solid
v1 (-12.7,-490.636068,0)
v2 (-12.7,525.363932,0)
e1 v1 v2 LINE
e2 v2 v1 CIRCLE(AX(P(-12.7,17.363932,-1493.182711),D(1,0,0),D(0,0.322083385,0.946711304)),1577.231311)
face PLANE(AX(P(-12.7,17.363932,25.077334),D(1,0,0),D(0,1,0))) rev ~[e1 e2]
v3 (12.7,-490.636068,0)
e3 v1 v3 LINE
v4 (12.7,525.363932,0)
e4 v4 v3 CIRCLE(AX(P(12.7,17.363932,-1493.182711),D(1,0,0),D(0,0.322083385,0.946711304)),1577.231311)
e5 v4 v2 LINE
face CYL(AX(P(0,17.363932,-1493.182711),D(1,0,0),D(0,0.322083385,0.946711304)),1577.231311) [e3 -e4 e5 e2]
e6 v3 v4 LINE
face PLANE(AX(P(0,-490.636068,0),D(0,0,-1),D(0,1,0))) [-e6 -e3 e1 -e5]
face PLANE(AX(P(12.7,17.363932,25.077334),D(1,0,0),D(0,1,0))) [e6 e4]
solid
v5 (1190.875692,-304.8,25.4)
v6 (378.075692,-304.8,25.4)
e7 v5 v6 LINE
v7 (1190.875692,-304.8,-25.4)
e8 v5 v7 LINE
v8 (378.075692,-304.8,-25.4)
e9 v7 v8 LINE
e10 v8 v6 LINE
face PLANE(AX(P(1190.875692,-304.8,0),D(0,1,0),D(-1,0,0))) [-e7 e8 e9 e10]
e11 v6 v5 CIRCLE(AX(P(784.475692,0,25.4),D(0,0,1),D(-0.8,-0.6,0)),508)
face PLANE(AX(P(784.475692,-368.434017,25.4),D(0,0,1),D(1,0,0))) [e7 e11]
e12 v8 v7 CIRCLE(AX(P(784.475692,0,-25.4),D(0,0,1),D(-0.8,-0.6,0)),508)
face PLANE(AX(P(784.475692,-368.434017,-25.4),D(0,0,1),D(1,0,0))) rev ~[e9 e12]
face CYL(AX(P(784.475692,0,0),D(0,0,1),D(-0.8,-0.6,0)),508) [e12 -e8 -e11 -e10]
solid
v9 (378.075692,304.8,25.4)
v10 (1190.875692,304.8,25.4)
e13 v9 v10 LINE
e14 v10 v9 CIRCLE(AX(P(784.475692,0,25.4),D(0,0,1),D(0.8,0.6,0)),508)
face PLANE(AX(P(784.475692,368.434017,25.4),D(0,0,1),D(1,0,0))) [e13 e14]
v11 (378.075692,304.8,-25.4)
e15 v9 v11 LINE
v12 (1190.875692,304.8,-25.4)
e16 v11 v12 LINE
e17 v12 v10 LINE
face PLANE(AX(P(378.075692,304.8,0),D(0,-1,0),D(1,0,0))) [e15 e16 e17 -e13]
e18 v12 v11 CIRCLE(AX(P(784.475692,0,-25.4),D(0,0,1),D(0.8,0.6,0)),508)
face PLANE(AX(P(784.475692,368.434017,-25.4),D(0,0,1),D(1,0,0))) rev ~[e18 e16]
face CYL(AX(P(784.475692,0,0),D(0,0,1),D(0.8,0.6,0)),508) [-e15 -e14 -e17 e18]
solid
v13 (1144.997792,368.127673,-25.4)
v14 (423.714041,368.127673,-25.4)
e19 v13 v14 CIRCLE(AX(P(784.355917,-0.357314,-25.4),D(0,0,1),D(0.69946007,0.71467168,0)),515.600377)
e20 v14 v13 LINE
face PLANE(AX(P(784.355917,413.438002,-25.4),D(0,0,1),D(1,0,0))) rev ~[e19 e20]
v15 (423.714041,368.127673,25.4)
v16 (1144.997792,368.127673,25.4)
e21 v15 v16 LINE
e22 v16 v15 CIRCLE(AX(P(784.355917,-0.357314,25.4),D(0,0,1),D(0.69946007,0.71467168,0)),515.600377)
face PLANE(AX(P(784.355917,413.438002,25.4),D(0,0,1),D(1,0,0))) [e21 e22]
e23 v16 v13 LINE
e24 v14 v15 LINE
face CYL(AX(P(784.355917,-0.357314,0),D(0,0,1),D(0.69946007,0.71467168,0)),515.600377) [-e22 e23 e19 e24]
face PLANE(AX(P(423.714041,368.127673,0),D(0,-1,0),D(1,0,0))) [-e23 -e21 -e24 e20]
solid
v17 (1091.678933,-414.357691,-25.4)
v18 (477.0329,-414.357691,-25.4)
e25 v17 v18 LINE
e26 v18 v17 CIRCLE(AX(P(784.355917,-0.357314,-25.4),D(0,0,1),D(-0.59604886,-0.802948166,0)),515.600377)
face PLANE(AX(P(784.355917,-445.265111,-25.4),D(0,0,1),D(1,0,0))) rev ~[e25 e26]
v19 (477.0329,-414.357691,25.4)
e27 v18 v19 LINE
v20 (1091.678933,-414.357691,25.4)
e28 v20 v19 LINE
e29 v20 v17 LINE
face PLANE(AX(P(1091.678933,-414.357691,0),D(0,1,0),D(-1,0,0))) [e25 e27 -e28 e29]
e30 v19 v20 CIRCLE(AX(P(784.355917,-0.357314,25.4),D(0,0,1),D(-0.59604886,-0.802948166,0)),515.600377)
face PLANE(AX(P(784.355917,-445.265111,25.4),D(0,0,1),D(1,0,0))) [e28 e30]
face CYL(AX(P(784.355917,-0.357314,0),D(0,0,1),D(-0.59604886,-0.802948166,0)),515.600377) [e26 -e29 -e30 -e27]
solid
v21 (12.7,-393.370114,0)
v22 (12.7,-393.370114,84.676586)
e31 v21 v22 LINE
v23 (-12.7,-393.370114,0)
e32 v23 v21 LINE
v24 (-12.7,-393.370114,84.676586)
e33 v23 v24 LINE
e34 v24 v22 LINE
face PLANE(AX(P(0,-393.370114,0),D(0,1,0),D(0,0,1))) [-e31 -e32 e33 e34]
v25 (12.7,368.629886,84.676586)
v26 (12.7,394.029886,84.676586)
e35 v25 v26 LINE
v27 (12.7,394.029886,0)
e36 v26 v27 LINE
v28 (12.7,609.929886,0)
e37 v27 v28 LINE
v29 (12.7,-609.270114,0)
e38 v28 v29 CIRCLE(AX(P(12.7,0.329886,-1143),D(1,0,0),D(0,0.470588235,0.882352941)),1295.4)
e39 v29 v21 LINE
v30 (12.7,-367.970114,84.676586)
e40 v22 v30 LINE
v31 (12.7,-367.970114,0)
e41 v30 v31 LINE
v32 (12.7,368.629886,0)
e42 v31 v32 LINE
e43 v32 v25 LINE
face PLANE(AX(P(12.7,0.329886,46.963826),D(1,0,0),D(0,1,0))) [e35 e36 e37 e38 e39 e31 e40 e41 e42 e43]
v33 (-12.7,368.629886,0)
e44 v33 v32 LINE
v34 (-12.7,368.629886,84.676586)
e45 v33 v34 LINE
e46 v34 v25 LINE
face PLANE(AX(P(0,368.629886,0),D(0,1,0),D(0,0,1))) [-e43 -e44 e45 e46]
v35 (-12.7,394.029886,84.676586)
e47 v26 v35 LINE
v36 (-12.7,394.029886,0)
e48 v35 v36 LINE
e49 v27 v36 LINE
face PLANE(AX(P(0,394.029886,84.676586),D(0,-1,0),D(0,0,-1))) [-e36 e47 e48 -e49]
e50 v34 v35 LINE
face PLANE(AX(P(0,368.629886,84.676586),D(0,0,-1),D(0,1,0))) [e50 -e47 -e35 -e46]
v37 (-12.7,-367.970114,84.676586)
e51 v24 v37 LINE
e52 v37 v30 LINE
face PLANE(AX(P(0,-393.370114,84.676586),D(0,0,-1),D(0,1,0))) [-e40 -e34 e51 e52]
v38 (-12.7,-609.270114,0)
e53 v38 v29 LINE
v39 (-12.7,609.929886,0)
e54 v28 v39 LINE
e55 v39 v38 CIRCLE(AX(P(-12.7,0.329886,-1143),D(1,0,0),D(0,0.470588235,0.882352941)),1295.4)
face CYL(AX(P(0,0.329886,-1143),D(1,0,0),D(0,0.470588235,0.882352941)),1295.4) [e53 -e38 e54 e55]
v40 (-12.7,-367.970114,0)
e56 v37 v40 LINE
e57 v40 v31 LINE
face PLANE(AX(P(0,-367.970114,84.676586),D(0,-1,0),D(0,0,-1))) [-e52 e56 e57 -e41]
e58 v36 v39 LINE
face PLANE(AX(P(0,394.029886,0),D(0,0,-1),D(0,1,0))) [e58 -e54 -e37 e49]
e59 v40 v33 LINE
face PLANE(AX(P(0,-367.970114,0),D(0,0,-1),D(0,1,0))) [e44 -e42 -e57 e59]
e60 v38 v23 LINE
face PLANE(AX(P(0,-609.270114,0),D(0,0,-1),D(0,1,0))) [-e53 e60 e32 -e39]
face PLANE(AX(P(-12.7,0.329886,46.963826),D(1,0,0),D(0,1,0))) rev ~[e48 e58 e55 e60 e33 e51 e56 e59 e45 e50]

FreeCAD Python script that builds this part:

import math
import FreeCAD as App
import Part
import Sketcher

V = App.Vector
Q = App.Units.Quantity

doc = App.newDocument("Part")
body = doc.addObject("PartDesign::Body", "Body")

sketch1 = body.newObject("Sketcher::SketchObject", "Sketch")
sketch1.AttachmentSupport = (doc.getObject("YZ_Plane"), [""])
sketch1.MapMode = "FlatFace"
sketch1.addGeometry(Part.ArcOfCircle(Part.Circle(V(0, -1143, 0), V(0, 0, 1), 1295), math.radians(62), math.radians(118)), False)
sketch1.addGeometry(Part.LineSegment(V(-609, 0, 0), V(-393, 0, 0)), False)
sketch1.addGeometry(Part.LineSegment(V(-393, 0, 0), V(-393, 85, 0)), False)
sketch1.addGeometry(Part.LineSegment(V(-393, 85, 0), V(-368, 85, 0)), False)
sketch1.addGeometry(Part.LineSegment(V(-368, 85, 0), V(-368, 0, 0)), False)
sketch1.addGeometry(Part.LineSegment(V(-368, 0, 0), V(369, 0, 0)), False)
sketch1.addGeometry(Part.LineSegment(V(369, 0, 0), V(369, 85, 0)), False)
sketch1.addGeometry(Part.LineSegment(V(369, 85, 0), V(394, 85, 0)), False)
sketch1.addGeometry(Part.LineSegment(V(394, 85, 0), V(394, 0, 0)), False)
sketch1.addGeometry(Part.LineSegment(V(394, 0, 0), V(610, 0, 0)), False)
sketch1.addConstraint(Sketcher.Constraint("Coincident", 0, 2, 1, 1))
sketch1.addConstraint(Sketcher.Constraint("Coincident", 1, 2, 2, 1))
sketch1.addConstraint(Sketcher.Constraint("Coincident", 2, 2, 3, 1))
sketch1.addConstraint(Sketcher.Constraint("Coincident", 3, 2, 4, 1))
sketch1.addConstraint(Sketcher.Constraint("Coincident", 4, 2, 5, 1))
sketch1.addConstraint(Sketcher.Constraint("Coincident", 5, 2, 6, 1))
sketch1.addConstraint(Sketcher.Constraint("Coincident", 6, 2, 7, 1))
sketch1.addConstraint(Sketcher.Constraint("Coincident", 7, 2, 8, 1))
sketch1.addConstraint(Sketcher.Constraint("Coincident", 8, 2, 9, 1))
sketch1.addConstraint(Sketcher.Constraint("Coincident", 9, 2, 0, 1))
sketch1.addConstraint(Sketcher.Constraint("Horizontal", 1))
sketch1.addConstraint(Sketcher.Constraint("Vertical", 2))
sketch1.addConstraint(Sketcher.Constraint("Horizontal", 3))
sketch1.addConstraint(Sketcher.Constraint("Vertical", 4))
sketch1.addConstraint(Sketcher.Constraint("Horizontal", 5))
sketch1.addConstraint(Sketcher.Constraint("Vertical", 6))
sketch1.addConstraint(Sketcher.Constraint("Horizontal", 7))
sketch1.addConstraint(Sketcher.Constraint("Vertical", 8))
sketch1.addConstraint(Sketcher.Constraint("Horizontal", 9))
sketch1.addConstraint(Sketcher.Constraint("PointOnObject", 1, 2, -1))
sketch1.addConstraint(Sketcher.Constraint("PointOnObject", 4, 2, -1))
sketch1.addConstraint(Sketcher.Constraint("PointOnObject", 8, 2, -1))
sketch1.addConstraint(Sketcher.Constraint("Horizontal", 3, 2, 6, 2))
sketch1.addConstraint(Sketcher.Constraint("Equal", 3, 7))
sketch1.addConstraint(Sketcher.Constraint("Equal", 1, 9))
sketch1.addConstraint(Sketcher.Constraint("Radius", 0, Q("51 in")))
sketch1.addConstraint(Sketcher.Constraint("DistanceX", 3, 1, 3, 2, Q("1 in")))
sketch1.addConstraint(Sketcher.Constraint("DistanceX", 5, 1, 5, 2, Q("29 in")))
sketch1.addConstraint(Sketcher.Constraint("DistanceX", 1, 1, 1, 2, Q("8.5 in")))
sketch1.addConstraint(Sketcher.Constraint("DistanceY", 2, 1, 2, 2, Q("84.676586 mm")))
sketch1.addConstraint(Sketcher.Constraint("DistanceX", -1, 1, 0, 3, Q("0.329886 mm")))
pad1 = body.newObject("PartDesign::Pad", "Pad")
pad1.Profile = sketch1
pad1.Length = Q("1 in")
pad1.Midplane = True
body2 = doc.addObject("PartDesign::Body", "Body001")

sketch2 = body2.newObject("Sketcher::SketchObject", "Sketch001")
sketch2.AttachmentSupport = (doc.getObject("YZ_Plane001"), [""])
sketch2.MapMode = "FlatFace"
sketch2.addGeometry(Part.ArcOfCircle(Part.Circle(V(17, -1493, 0), V(0, 0, 1), 1577), math.radians(71), math.radians(109)), False)
sketch2.addGeometry(Part.LineSegment(V(-491, 0, 0), V(525, 0, 0)), False)
sketch2.addConstraint(Sketcher.Constraint("Coincident", 0, 1, 1, 2))
sketch2.addConstraint(Sketcher.Constraint("Coincident", 1, 1, 0, 2))
sketch2.addConstraint(Sketcher.Constraint("Horizontal", 1))
sketch2.addConstraint(Sketcher.Constraint("PointOnObject", 1, 1, -1))
sketch2.addConstraint(Sketcher.Constraint("DistanceX", 1, 1, 1, 2, Q("40 in")))
sketch2.addConstraint(Sketcher.Constraint("Radius", 0, Q("1577.231311 mm")))
sketch2.addConstraint(Sketcher.Constraint("DistanceX", -1, 1, 0, 3, Q("17.363932 mm")))
pad2 = body2.newObject("PartDesign::Pad", "Pad001")
pad2.Profile = sketch2
pad2.Length = Q("1 in")
pad2.Midplane = True
body3 = doc.addObject("PartDesign::Body", "Body002")

sketch3 = body3.newObject("Sketcher::SketchObject", "Sketch002")
sketch3.AttachmentSupport = (doc.getObject("XY_Plane002"), [""])
sketch3.MapMode = "FlatFace"
sketch3.addGeometry(Part.LineSegment(V(378, 305, 0), V(1191, 305, 0)), False)
sketch3.addGeometry(Part.ArcOfCircle(Part.Circle(V(784, 0, 0), V(0, 0, 1), 508), math.radians(37), math.radians(143)), False)
sketch3.addConstraint(Sketcher.Constraint("Coincident", 0, 1, 1, 2))
sketch3.addConstraint(Sketcher.Constraint("Coincident", 1, 1, 0, 2))
sketch3.addConstraint(Sketcher.Constraint("Horizontal", 0))
sketch3.addConstraint(Sketcher.Constraint("PointOnObject", 1, 3, -1))
sketch3.addConstraint(Sketcher.Constraint("Radius", 1, Q("20 in")))
sketch3.addConstraint(Sketcher.Constraint("DistanceX", 0, 1, 0, 2, Q("32 in")))
sketch3.addConstraint(Sketcher.Constraint("DistanceX", -1, 1, 1, 3, Q("784.475692 mm")))
pad3 = body3.newObject("PartDesign::Pad", "Pad002")
pad3.Profile = sketch3
pad3.Length = Q("2 in")
pad3.Midplane = True
body4 = doc.addObject("PartDesign::Body", "Body003")

sketch4 = body4.newObject("Sketcher::SketchObject", "Sketch003")
sketch4.AttachmentSupport = (doc.getObject("XY_Plane003"), [""])
sketch4.MapMode = "FlatFace"
sketch4.addGeometry(Part.LineSegment(V(1191, -305, 0), V(378, -305, 0)), False)
sketch4.addGeometry(Part.ArcOfCircle(Part.Circle(V(784, 0, 0), V(0, 0, 1), 508), math.radians(-143), math.radians(-37)), False)
sketch4.addConstraint(Sketcher.Constraint("Coincident", 0, 1, 1, 2))
sketch4.addConstraint(Sketcher.Constraint("Coincident", 1, 1, 0, 2))
sketch4.addConstraint(Sketcher.Constraint("Horizontal", 0))
sketch4.addConstraint(Sketcher.Constraint("PointOnObject", 1, 3, -1))
sketch4.addConstraint(Sketcher.Constraint("Radius", 1, Q("20 in")))
sketch4.addConstraint(Sketcher.Constraint("DistanceX", 0, 2, 0, 1, Q("32 in")))
sketch4.addConstraint(Sketcher.Constraint("DistanceX", -1, 1, 1, 3, Q("784.475692 mm")))
pad4 = body4.newObject("PartDesign::Pad", "Pad003")
pad4.Profile = sketch4
pad4.Length = Q("2 in")
pad4.Midplane = True
body5 = doc.addObject("PartDesign::Body", "Body004")

sketch5 = body5.newObject("Sketcher::SketchObject", "Sketch004")
sketch5.AttachmentSupport = (doc.getObject("XY_Plane004"), [""])
sketch5.MapMode = "FlatFace"
sketch5.addGeometry(Part.LineSegment(V(1092, -414, 0), V(477, -414, 0)), False)
sketch5.addGeometry(Part.ArcOfCircle(Part.Circle(V(784, 0, 0), V(0, 0, 1), 516), math.radians(-127), math.radians(-53)), False)
sketch5.addConstraint(Sketcher.Constraint("Coincident", 0, 1, 1, 2))
sketch5.addConstraint(Sketcher.Constraint("Coincident", 1, 1, 0, 2))
sketch5.addConstraint(Sketcher.Constraint("Horizontal", 0))
sketch5.addConstraint(Sketcher.Constraint("Radius", 1, Q("515.600377 mm")))
sketch5.addConstraint(Sketcher.Constraint("DistanceX", -1, 1, 1, 1, Q("477.0329 mm")))
sketch5.addConstraint(Sketcher.Constraint("DistanceX", 0, 2, 0, 1, Q("614.646033 mm")))
sketch5.addConstraint(Sketcher.Constraint("DistanceY", 0, 1, -1, 1, Q("414.357691 mm")))
pad5 = body5.newObject("PartDesign::Pad", "Pad004")
pad5.Profile = sketch5
pad5.Length = Q("2 in")
pad5.Midplane = True
body6 = doc.addObject("PartDesign::Body", "Body005")

sketch6 = body6.newObject("Sketcher::SketchObject", "Sketch005")
sketch6.AttachmentSupport = (doc.getObject("XY_Plane005"), [""])
sketch6.MapMode = "FlatFace"
sketch6.addGeometry(Part.ArcOfCircle(Part.Circle(V(784, 0, 0), V(0, 0, 1), 516), math.radians(46), math.radians(134)), False)
sketch6.addGeometry(Part.LineSegment(V(424, 368, 0), V(1145, 368, 0)), False)
sketch6.addConstraint(Sketcher.Constraint("Coincident", 0, 1, 1, 2))
sketch6.addConstraint(Sketcher.Constraint("Coincident", 1, 1, 0, 2))
sketch6.addConstraint(Sketcher.Constraint("Horizontal", 1))
sketch6.addConstraint(Sketcher.Constraint("Radius", 0, Q("515.600377 mm")))
sketch6.addConstraint(Sketcher.Constraint("DistanceX", 1, 1, 1, 2, Q("721.283751 mm")))
sketch6.addConstraint(Sketcher.Constraint("DistanceX", -1, 1, 1, 1, Q("423.714041 mm")))
sketch6.addConstraint(Sketcher.Constraint("DistanceY", 0, 3, -1, 1, Q("0.357314 mm")))
pad6 = body6.newObject("PartDesign::Pad", "Pad005")
pad6.Profile = sketch6
pad6.Length = Q("2 in")
pad6.Midplane = True

doc.recompute()
